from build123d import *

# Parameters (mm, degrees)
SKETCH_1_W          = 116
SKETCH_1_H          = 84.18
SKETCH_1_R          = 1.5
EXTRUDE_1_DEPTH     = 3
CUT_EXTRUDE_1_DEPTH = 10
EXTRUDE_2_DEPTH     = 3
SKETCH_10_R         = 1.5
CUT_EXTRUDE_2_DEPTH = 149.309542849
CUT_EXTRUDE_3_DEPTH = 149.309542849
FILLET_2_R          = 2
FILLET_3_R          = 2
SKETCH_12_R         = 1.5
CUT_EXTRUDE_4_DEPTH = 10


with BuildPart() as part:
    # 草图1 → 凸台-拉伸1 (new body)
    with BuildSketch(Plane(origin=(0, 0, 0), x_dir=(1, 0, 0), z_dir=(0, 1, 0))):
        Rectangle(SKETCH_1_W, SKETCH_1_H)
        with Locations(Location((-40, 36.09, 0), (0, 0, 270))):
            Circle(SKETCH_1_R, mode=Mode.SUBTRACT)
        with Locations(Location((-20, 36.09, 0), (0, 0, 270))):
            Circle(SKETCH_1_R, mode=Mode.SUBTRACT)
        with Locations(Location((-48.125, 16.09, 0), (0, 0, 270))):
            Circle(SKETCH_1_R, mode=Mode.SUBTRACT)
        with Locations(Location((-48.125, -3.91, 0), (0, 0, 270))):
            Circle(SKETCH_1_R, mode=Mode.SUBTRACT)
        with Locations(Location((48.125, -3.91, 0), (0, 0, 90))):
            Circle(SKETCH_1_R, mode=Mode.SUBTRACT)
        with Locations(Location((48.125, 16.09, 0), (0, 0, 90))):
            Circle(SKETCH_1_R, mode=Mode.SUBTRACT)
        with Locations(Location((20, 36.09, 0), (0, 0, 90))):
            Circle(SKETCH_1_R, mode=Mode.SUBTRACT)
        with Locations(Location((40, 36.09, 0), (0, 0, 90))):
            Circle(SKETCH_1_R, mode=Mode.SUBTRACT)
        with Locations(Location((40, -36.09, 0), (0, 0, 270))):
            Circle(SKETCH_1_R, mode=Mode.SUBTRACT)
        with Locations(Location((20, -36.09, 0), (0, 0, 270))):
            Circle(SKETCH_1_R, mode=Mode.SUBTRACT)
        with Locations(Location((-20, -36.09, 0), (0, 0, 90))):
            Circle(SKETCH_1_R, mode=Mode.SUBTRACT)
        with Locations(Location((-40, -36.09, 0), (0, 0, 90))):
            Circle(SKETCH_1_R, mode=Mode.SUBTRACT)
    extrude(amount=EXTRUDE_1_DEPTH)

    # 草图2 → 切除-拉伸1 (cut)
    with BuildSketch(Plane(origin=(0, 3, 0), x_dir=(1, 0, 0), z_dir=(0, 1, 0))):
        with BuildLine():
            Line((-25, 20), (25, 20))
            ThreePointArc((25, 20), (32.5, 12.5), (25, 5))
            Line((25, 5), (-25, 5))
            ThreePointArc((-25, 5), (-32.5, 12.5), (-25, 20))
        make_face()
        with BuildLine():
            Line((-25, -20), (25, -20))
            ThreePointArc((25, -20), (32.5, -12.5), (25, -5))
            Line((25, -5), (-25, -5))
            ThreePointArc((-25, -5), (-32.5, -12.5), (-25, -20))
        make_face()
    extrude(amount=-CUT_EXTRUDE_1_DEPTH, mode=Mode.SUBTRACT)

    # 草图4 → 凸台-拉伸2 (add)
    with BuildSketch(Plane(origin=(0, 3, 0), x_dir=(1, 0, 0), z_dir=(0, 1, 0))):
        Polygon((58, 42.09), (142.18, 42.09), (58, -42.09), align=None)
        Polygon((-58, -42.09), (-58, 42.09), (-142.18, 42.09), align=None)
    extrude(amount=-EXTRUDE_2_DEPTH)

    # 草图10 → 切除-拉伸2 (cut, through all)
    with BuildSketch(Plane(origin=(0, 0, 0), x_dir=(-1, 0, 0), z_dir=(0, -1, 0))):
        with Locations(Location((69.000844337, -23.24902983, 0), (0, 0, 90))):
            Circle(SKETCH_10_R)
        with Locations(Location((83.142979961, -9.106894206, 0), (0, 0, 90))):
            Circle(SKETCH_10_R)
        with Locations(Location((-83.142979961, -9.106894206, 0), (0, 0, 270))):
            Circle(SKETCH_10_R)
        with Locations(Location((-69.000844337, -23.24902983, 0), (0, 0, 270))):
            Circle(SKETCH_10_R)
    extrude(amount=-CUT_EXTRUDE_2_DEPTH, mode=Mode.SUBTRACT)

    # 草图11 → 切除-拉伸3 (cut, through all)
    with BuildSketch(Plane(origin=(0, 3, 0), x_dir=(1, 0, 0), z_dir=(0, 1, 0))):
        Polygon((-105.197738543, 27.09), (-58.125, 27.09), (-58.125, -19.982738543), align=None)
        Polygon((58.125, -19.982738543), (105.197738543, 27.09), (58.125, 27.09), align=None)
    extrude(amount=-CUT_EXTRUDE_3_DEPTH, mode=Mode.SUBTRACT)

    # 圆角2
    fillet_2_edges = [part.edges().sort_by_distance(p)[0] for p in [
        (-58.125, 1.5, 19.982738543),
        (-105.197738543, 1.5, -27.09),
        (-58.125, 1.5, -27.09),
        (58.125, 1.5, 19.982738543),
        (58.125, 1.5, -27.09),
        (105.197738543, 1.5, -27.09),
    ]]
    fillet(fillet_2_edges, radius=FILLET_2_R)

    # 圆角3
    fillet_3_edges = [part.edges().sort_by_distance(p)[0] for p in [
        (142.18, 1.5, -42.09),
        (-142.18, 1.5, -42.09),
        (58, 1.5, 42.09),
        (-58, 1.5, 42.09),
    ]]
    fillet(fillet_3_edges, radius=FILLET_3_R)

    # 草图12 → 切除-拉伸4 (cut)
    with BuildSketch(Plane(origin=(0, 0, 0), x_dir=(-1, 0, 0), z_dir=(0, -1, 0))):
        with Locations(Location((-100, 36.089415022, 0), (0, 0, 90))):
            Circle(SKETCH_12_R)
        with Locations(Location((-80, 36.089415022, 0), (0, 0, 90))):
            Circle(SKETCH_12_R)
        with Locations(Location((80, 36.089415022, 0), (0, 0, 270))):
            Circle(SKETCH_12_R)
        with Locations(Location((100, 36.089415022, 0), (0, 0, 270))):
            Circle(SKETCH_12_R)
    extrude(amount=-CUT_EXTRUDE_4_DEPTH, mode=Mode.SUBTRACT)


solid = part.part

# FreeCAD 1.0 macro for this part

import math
import FreeCAD as App
import Part
import Sketcher
from FreeCAD import Vector


def edges_at(feature, points):
    """Names of the edges that pass closest to the given points."""
    edges = feature.Shape.Edges
    near = lambda p: min(range(len(edges)), key=lambda i: edges[i].distToShape(Part.Vertex(*p))[0])
    return sorted({f"Edge{near(p) + 1}" for p in points})


def add_polygon(sketch, points):
    """Adds a closed chain of lines whose ends are joined by coincident constraints."""
    first, n = sketch.GeometryCount, len(points)
    for a, b in zip(points, points[1:] + points[:1]):
        sketch.addGeometry(Part.LineSegment(App.Vector(*a, 0), App.Vector(*b, 0)), False)
    for i in range(n):
        sketch.addConstraint(Sketcher.Constraint("Coincident", first + i, 2, first + (i + 1) % n, 1))

doc = App.newDocument("Part")
body = doc.addObject("PartDesign::Body", "Body")

sketch1 = body.newObject("Sketcher::SketchObject", "Sketch")
sketch1.AttachmentSupport = (doc.getObject("XZ_Plane"), [""])
sketch1.MapMode = "FlatFace"
add_polygon(sketch1, [(-58, -42.1), (-58, 42.1), (58, 42.1), (58, -42.1)])
sketch1.addGeometry(Part.Circle(Vector(-40, 36.1, 0), Vector(0, 0, 1), 1.5), False)
sketch1.addGeometry(Part.Circle(Vector(-20, 36.1, 0), Vector(0, 0, 1), 1.5), False)
sketch1.addGeometry(Part.Circle(Vector(-48.1, 3.9, 0), Vector(0, 0, 1), 1.5), False)
sketch1.addGeometry(Part.Circle(Vector(20, 36.1, 0), Vector(0, 0, 1), 1.5), False)
sketch1.addGeometry(Part.Circle(Vector(40, 36.1, 0), Vector(0, 0, 1), 1.5), False)
sketch1.addGeometry(Part.Circle(Vector(48.1, 3.9, 0), Vector(0, 0, 1), 1.5), False)
sketch1.addGeometry(Part.Circle(Vector(-48.1, -16.1, 0), Vector(0, 0, 1), 1.5), False)
sketch1.addGeometry(Part.Circle(Vector(-40, -36.1, 0), Vector(0, 0, 1), 1.5), False)
sketch1.addGeometry(Part.Circle(Vector(-20, -36.1, 0), Vector(0, 0, 1), 1.5), False)
sketch1.addGeometry(Part.Circle(Vector(48.1, -16.1, 0), Vector(0, 0, 1), 1.5), False)
sketch1.addGeometry(Part.Circle(Vector(20, -36.1, 0), Vector(0, 0, 1), 1.5), False)
sketch1.addGeometry(Part.Circle(Vector(40, -36.1, 0), Vector(0, 0, 1), 1.5), False)
sketch1.addConstraint([
    Sketcher.Constraint("Vertical", 0),
    Sketcher.Constraint("Horizontal", 1),
    Sketcher.Constraint("Vertical", 2),
    Sketcher.Constraint("Horizontal", 3),
    Sketcher.Constraint("Equal", 4, 5),
    Sketcher.Constraint("Equal", 5, 6),
    Sketcher.Constraint("Equal", 6, 7),
    Sketcher.Constraint("Equal", 7, 8),
    Sketcher.Constraint("Equal", 8, 9),
    Sketcher.Constraint("Equal", 9, 10),
    Sketcher.Constraint("Equal", 10, 11),
    Sketcher.Constraint("Equal", 11, 12),
    Sketcher.Constraint("Equal", 12, 13),
    Sketcher.Constraint("Equal", 13, 14),
    Sketcher.Constraint("Equal", 14, 15),
    Sketcher.Constraint("Symmetric", 8, 3, 11, 3, -1, 1),
    Sketcher.Constraint("Symmetric", 7, 3, 12, 3, -1, 1),
    Sketcher.Constraint("Symmetric", 5, 3, 14, 3, -1, 1),
    Sketcher.Constraint("Symmetric", 4, 3, 15, 3, -1, 1),
    Sketcher.Constraint("Symmetric", 0, 2, 2, 2, -1, 1),
    Sketcher.Constraint("Symmetric", 5, 3, 7, 3, -2),
    Sketcher.Constraint("Symmetric", 4, 3, 8, 3, -2),
    Sketcher.Constraint("Symmetric", 6, 3, 9, 3, -2),
    Sketcher.Constraint("Symmetric", 10, 3, 13, 3, -2),
    Sketcher.Constraint("Horizontal", 4, 3, 5, 3),
    Sketcher.Constraint("Vertical", 6, 3, 10, 3),
    Sketcher.Constraint("Diameter", 4, 3.0),
    Sketcher.Constraint("DistanceX", 1, 1, 1, 2, 116.0),
    Sketcher.Constraint("DistanceX", 4, 3, -1, 1, 40.0),
    Sketcher.Constraint("DistanceX", 5, 3, -1, 1, 20.0),
    Sketcher.Constraint("DistanceY", 10, 3, 6, 3, 20.0),
    Sketcher.Constraint("DistanceY", 11, 3, 10, 3, 20.0),
    Sketcher.Constraint("DistanceY", 4, 3, 0, 2, 6.0),
    Sketcher.Constraint("DistanceY", 0, 1, 0, 2, 84.18),
    Sketcher.Constraint("DistanceX", 6, 3, 9, 3, 96.25),
])
pad1 = body.newObject("PartDesign::Pad", "Pad")
pad1.Profile = sketch1
pad1.Length = 3
pad1.Reversed = True

sketch2 = body.newObject("Sketcher::SketchObject", "Sketch001")
sketch2.AttachmentSupport = (doc.getObject("XZ_Plane"), [""])
sketch2.MapMode = "FlatFace"
sketch2.AttachmentOffset = App.Placement(Vector(0, 0, -3), App.Rotation())
sketch2.addGeometry([
    Part.LineSegment(Vector(25, -20, 0), Vector(-25, -20, 0)),
    Part.ArcOfCircle(Part.Circle(Vector(-25, -12, 0), Vector(0, 0, 1), 8), math.radians(90), math.radians(270)),
    Part.LineSegment(Vector(-25, -5, 0), Vector(25, -5, 0)),
    Part.ArcOfCircle(Part.Circle(Vector(25, -12, 0), Vector(0, 0, 1), 8), math.radians(-90), math.radians(90)),
    Part.LineSegment(Vector(-25, 20, 0), Vector(25, 20, 0)),
    Part.ArcOfCircle(Part.Circle(Vector(25, 12, 0), Vector(0, 0, 1), 8), math.radians(-90), math.radians(90)),
    Part.LineSegment(Vector(25, 5, 0), Vector(-25, 5, 0)),
    Part.ArcOfCircle(Part.Circle(Vector(-25, 12, 0), Vector(0, 0, 1), 8), math.radians(90), math.radians(270)),
], False)
sketch2.addConstraint([
    Sketcher.Constraint("Tangent", 0, 2, 1, 2),
    Sketcher.Constraint("Tangent", 1, 1, 2, 1),
    Sketcher.Constraint("Tangent", 2, 2, 3, 2),
    Sketcher.Constraint("Tangent", 3, 1, 0, 1),
    Sketcher.Constraint("Tangent", 4, 2, 5, 2),
    Sketcher.Constraint("Tangent", 5, 1, 6, 1),
    Sketcher.Constraint("Tangent", 6, 2, 7, 2),
    Sketcher.Constraint("Tangent", 7, 1, 4, 1),
    Sketcher.Constraint("Horizontal", 0),
    Sketcher.Constraint("Horizontal", 2),
    Sketcher.Constraint("Horizontal", 4),
    Sketcher.Constraint("Horizontal", 6),
    Sketcher.Constraint("Equal", 3, 5),
    Sketcher.Constraint("Symmetric", 1, 3, 5, 3, -1, 1),
    Sketcher.Constraint("Vertical", 3, 3, 5, 3),
    Sketcher.Constraint("Vertical", 1, 3, 7, 3),
    Sketcher.Constraint("Radius", 1, 7.5),
    Sketcher.Constraint("DistanceX", 0, 2, 0, 1, 50.0),
    Sketcher.Constraint("DistanceY", 0, 2, -1, 1, 20.0),
])
pocket1 = body.newObject("PartDesign::Pocket", "Pocket")
pocket1.Profile = sketch2
pocket1.Length = 10
pocket1.Reversed = True

sketch3 = body.newObject("Sketcher::SketchObject", "Sketch002")
sketch3.AttachmentSupport = (doc.getObject("XZ_Plane"), [""])
sketch3.MapMode = "FlatFace"
sketch3.AttachmentOffset = App.Placement(Vector(0, 0, -3), App.Rotation())
add_polygon(sketch3, [(142, -42), (58, -42), (58, 42)])
add_polygon(sketch3, [(-58, 42), (-58, -42), (-142, -42)])
sketch3.addConstraint([
    Sketcher.Constraint("Horizontal", 0),
    Sketcher.Constraint("Vertical", 1),
    Sketcher.Constraint("Vertical", 3),
    Sketcher.Constraint("Horizontal", 4),
    Sketcher.Constraint("Symmetric", 1, 2, 3, 2, -1, 1),
    Sketcher.Constraint("Symmetric", 2, 2, 4, 2, -2),
    Sketcher.Constraint("Perpendicular", 2, 5),
    Sketcher.Constraint("Horizontal", 1, 2, 5, 2),
    Sketcher.Constraint("DistanceX", -1, 1, 0, 2, 58.0),
    Sketcher.Constraint("DistanceX", 0, 2, 0, 1, 84.18),
])
pad2 = body.newObject("PartDesign::Pad", "Pad001")
pad2.Profile = sketch3
pad2.Length = 3

sketch4 = body.newObject("Sketcher::SketchObject", "Sketch003")
sketch4.AttachmentSupport = (doc.getObject("XZ_Plane"), [""])
sketch4.MapMode = "FlatFace"
sketch4.addGeometry([
    Part.Circle(Vector(-69, 23.2, 0), Vector(0, 0, 1), 1.5),
    Part.Circle(Vector(-83.1, 9.1, 0), Vector(0, 0, 1), 1.5),
    Part.Circle(Vector(83.1, 9.1, 0), Vector(0, 0, 1), 1.5),
    Part.Circle(Vector(69, 23.2, 0), Vector(0, 0, 1), 1.5),
], False)
sketch4.addConstraint([
    Sketcher.Constraint("Equal", 0, 1),
    Sketcher.Constraint("Equal", 1, 2),
    Sketcher.Constraint("Equal", 2, 3),
    Sketcher.Constraint("Symmetric", 1, 3, 2, 3, -2),
    Sketcher.Constraint("Symmetric", 0, 3, 3, 3, -2),
    Sketcher.Constraint("Diameter", 0, 3.0),
    Sketcher.Constraint("DistanceY", -1, 1, 0, 3, 23.24903),
    Sketcher.Constraint("DistanceX", 1, 3, -1, 1, 83.14298),
    Sketcher.Constraint("DistanceX", 0, 3, 3, 3, 138.001689),
    Sketcher.Constraint("DistanceY", -1, 1, 1, 3, 9.106894),
])
pocket2 = body.newObject("PartDesign::Pocket", "Pocket001")
pocket2.Profile = sketch4
pocket2.Type = "ThroughAll"

sketch5 = body.newObject("Sketcher::SketchObject", "Sketch004")
sketch5.AttachmentSupport = (doc.getObject("XZ_Plane"), [""])
sketch5.MapMode = "FlatFace"
sketch5.AttachmentOffset = App.Placement(Vector(0, 0, -3), App.Rotation())
add_polygon(sketch5, [(-58, -27), (-105, -27), (-58, 20)])
add_polygon(sketch5, [(58, 20), (105, -27), (58, -27)])
sketch5.addConstraint([
    Sketcher.Constraint("Horizontal", 0),
    Sketcher.Constraint("Vertical", 2),
    Sketcher.Constraint("Horizontal", 4),
    Sketcher.Constraint("Vertical", 5),
    Sketcher.Constraint("Symmetric", 0, 2, 3, 2, -2),
    Sketcher.Constraint("Symmetric", 1, 2, 5, 2, -2),
    Sketcher.Constraint("Perpendicular", 1, 3),
    Sketcher.Constraint("DistanceY", 0, 2, -1, 1, 27.09),
    Sketcher.Constraint("DistanceX", 2, 2, 4, 2, 116.25),
    Sketcher.Constraint("DistanceX", 0, 2, 0, 1, 47.072739),
])
pocket3 = body.newObject("PartDesign::Pocket", "Pocket002")
pocket3.Profile = sketch5
pocket3.Type = "ThroughAll"
pocket3.Reversed = True
doc.recompute()

fillet = body.newObject("PartDesign::Fillet", "Fillet")
fillet.Base = (pocket3, edges_at(pocket3, [
    (-58.125, 1.5, 19.983),
    (-105.198, 1.5, -27.09),
    (-58.125, 1.5, -27.09),
    (58.125, 1.5, 19.983),
    (58.125, 1.5, -27.09),
    (105.198, 1.5, -27.09),
]))
fillet.Radius = 2
doc.recompute()

fillet2 = body.newObject("PartDesign::Fillet", "Fillet001")
fillet2.Base = (fillet, edges_at(fillet, [
    (142.18, 1.5, -42.09),
    (-142.18, 1.5, -42.09),
    (58, 1.5, 42.09),
    (-58, 1.5, 42.09),
]))
fillet2.Radius = 2

sketch6 = body.newObject("Sketcher::SketchObject", "Sketch005")
sketch6.AttachmentSupport = (doc.getObject("XZ_Plane"), [""])
sketch6.MapMode = "FlatFace"
sketch6.addGeometry([
    Part.Circle(Vector(100, -36.1, 0), Vector(0, 0, 1), 1.5),
    Part.Circle(Vector(80, -36.1, 0), Vector(0, 0, 1), 1.5),
    Part.Circle(Vector(-80, -36.1, 0), Vector(0, 0, 1), 1.5),
    Part.Circle(Vector(-100, -36.1, 0), Vector(0, 0, 1), 1.5),
], False)
sketch6.addConstraint([
    Sketcher.Constraint("Equal", 0, 1),
    Sketcher.Constraint("Equal", 1, 2),
    Sketcher.Constraint("Equal", 2, 3),
    Sketcher.Constraint("Symmetric", 1, 3, 2, 3, -2),
    Sketcher.Constraint("Symmetric", 0, 3, 3, 3, -2),
    Sketcher.Constraint("Horizontal", 0, 3, 1, 3),
    Sketcher.Constraint("Diameter", 0, 3.0),
    Sketcher.Constraint("DistanceX", -1, 1, 0, 3, 100.0),
    Sketcher.Constraint("DistanceX", -1, 1, 1, 3, 80.0),
    Sketcher.Constraint("DistanceY", 0, 3, -1, 1, 36.089415),
])
pocket4 = body.newObject("PartDesign::Pocket", "Pocket003")
pocket4.Profile = sketch6
pocket4.Length = 10

doc.recompute()
